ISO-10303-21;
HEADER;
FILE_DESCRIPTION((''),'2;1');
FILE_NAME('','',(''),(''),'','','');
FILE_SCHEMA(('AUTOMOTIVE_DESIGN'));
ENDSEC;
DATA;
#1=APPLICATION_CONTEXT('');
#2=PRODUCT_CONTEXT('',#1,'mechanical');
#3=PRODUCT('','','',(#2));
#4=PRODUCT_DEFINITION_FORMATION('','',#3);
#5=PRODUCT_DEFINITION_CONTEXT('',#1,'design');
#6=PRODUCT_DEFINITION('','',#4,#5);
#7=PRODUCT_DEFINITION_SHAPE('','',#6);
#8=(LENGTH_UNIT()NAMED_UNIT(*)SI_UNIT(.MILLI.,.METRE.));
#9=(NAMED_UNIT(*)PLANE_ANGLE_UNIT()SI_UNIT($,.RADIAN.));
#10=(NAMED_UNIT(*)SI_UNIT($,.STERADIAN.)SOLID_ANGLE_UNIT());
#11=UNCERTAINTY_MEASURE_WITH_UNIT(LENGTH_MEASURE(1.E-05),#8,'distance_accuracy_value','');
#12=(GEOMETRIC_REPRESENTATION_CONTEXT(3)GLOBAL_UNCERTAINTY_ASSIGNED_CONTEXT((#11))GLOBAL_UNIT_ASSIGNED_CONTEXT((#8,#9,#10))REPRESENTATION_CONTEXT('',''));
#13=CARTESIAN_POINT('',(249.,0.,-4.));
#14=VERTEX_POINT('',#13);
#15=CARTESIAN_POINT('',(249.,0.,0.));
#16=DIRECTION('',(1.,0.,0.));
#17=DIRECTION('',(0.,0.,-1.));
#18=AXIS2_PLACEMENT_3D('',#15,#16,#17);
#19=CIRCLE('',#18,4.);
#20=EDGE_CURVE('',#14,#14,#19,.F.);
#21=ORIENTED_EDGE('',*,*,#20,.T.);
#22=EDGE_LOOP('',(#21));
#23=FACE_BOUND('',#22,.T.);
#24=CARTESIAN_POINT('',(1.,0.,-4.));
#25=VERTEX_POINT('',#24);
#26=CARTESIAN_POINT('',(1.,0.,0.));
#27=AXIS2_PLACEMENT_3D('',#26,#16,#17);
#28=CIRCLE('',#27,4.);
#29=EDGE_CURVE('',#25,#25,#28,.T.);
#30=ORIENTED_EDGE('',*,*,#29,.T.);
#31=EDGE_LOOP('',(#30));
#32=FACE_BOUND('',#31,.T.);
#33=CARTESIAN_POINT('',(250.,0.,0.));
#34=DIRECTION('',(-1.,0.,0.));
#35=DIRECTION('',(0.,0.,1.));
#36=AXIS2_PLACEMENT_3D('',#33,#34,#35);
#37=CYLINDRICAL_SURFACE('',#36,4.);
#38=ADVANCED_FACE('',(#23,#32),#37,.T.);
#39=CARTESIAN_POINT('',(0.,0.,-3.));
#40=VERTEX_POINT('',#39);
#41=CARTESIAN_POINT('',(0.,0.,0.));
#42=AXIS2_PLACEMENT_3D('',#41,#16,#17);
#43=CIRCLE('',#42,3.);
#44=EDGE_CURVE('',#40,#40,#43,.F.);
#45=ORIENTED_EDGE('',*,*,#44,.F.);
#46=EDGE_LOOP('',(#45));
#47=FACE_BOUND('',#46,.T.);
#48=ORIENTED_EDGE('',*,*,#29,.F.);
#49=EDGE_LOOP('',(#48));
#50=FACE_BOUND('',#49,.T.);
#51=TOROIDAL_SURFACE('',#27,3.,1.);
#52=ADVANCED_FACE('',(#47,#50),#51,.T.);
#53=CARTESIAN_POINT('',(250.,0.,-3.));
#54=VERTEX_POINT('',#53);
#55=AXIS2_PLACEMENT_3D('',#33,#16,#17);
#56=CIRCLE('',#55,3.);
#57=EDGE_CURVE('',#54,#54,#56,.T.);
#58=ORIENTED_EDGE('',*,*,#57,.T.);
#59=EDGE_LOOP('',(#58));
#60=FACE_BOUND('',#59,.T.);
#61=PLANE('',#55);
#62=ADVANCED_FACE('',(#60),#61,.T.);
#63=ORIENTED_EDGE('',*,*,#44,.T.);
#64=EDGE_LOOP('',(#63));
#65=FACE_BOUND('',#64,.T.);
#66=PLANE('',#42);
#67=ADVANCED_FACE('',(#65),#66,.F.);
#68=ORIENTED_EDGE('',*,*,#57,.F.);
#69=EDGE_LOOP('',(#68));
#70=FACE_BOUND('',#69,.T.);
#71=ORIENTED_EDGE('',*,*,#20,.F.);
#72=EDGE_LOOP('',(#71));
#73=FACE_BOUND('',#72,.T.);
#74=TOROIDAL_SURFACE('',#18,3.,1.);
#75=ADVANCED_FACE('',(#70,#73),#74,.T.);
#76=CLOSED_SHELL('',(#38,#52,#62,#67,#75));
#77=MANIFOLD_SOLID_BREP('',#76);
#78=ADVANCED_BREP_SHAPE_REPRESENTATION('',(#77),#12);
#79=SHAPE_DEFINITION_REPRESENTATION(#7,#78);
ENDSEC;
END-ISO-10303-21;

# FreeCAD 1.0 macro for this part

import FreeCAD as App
import Part
import Sketcher


def edges_at(feature, points):
    """Names of the edges that pass closest to the given points."""
    edges = feature.Shape.Edges
    near = lambda p: min(range(len(edges)), key=lambda i: edges[i].distToShape(Part.Vertex(*p))[0])
    return sorted({f"Edge{near(p) + 1}" for p in points})

doc = App.newDocument("Part")
body = doc.addObject("PartDesign::Body", "Body")

# Sketch on YZ plane
sketch1 = body.newObject("Sketcher::SketchObject", "Sketch")
sketch1.AttachmentSupport = (doc.getObject("YZ_Plane"), [""])
sketch1.MapMode = "FlatFace"
sketch1.addGeometry(Part.Circle(App.Vector(0, 0, 0), App.Vector(0, 0, 1), 4), False)
sketch1.addConstraint([
    Sketcher.Constraint("Coincident", 0, 3, -1, 1),
    Sketcher.Constraint("Diameter", 0, 8.0),
])
pad1 = body.newObject("PartDesign::Pad", "Pad")
pad1.Profile = sketch1
pad1.Length = 250
doc.recompute()

fillet = body.newObject("PartDesign::Fillet", "Fillet")
fillet.Base = (pad1, edges_at(pad1, [(0, 0, 4), (250, 0, 4)]))
fillet.Radius = 1

doc.recompute()
